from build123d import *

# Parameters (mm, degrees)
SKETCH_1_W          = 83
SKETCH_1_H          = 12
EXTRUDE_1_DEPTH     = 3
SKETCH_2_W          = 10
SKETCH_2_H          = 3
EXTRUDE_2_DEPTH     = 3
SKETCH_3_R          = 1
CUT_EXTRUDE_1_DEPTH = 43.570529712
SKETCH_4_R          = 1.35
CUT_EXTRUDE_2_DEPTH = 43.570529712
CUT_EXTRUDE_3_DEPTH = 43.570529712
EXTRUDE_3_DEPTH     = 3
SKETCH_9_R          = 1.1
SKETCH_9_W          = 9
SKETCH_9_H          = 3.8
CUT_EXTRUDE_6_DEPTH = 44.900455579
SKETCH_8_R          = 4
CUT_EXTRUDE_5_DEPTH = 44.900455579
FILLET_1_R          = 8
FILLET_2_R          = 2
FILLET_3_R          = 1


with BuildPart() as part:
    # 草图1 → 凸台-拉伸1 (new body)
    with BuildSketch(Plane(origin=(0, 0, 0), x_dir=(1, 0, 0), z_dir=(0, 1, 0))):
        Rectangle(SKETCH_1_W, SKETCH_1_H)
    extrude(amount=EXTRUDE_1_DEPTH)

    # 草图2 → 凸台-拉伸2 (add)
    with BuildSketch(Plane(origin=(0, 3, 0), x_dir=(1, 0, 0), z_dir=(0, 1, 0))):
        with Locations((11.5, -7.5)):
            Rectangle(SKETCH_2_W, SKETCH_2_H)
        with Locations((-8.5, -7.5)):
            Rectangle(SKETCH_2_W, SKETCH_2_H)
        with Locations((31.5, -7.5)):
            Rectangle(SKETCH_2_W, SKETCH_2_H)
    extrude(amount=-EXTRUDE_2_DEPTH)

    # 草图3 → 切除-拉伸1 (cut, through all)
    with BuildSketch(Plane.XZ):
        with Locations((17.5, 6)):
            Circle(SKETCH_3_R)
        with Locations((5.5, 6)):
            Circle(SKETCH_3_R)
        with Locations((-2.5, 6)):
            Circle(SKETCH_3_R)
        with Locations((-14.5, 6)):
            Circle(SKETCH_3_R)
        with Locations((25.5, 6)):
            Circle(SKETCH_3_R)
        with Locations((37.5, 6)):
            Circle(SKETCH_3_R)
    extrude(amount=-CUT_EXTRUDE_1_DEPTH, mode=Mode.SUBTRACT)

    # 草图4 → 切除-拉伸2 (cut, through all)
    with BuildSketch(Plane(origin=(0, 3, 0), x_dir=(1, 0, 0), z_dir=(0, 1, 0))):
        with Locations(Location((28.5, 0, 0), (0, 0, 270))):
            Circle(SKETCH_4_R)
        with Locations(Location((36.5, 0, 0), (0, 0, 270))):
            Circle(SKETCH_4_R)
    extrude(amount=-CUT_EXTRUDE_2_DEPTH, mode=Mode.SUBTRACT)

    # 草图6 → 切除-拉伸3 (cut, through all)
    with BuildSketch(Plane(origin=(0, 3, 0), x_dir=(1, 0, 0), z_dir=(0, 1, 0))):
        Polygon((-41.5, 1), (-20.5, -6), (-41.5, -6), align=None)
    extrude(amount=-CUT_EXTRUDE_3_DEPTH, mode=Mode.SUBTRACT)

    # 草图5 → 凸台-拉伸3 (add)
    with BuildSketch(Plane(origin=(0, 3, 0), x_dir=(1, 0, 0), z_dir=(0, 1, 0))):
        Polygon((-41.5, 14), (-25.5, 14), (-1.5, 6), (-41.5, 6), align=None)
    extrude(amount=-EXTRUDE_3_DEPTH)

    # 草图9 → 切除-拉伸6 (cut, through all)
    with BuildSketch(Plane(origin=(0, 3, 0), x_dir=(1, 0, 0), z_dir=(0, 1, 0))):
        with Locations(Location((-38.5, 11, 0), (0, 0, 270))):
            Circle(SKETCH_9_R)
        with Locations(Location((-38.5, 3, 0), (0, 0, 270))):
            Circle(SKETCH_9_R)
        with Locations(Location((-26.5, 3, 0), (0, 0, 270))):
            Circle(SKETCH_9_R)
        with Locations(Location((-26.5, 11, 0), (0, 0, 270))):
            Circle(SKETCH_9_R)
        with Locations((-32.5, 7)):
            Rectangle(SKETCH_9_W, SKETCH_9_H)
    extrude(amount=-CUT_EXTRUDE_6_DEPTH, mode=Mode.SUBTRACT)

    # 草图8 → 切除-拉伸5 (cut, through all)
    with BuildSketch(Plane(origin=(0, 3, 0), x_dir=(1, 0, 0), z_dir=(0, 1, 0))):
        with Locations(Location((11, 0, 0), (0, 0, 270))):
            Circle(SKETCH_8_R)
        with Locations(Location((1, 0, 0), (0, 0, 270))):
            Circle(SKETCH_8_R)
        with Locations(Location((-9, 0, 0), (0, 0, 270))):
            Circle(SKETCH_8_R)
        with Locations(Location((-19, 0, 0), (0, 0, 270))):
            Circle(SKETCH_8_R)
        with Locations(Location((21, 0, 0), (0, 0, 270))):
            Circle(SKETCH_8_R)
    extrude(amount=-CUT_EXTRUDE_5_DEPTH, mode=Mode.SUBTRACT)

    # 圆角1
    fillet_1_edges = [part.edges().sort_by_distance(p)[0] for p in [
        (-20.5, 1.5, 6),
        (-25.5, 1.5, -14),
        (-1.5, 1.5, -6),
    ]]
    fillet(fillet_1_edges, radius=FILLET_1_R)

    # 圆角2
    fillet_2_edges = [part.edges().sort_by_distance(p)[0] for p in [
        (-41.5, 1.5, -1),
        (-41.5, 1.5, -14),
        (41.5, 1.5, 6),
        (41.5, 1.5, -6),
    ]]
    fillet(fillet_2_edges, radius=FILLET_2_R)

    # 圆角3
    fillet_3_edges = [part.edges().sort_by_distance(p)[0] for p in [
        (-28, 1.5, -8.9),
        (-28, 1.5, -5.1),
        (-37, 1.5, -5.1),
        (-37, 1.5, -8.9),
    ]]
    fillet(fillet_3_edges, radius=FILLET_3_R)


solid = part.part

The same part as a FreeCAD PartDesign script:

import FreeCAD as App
import Part
import Sketcher
from FreeCAD import Vector


def edges_at(feature, points):
    """Names of the edges that pass closest to the given points."""
    edges = feature.Shape.Edges
    near = lambda p: min(range(len(edges)), key=lambda i: edges[i].distToShape(Part.Vertex(*p))[0])
    return sorted({f"Edge{near(p) + 1}" for p in points})

doc = App.newDocument("Part")
params = doc.addObject("Spreadsheet::Sheet", "Params")
for row, (alias, value) in enumerate([
    ("sketch1_width", "83 mm"),
    ("sketch1_height", "12 mm"),
    ("pad1_length", "3 mm"),
    ("sketch2_width", "10 mm"),
    ("sketch2_height", "3 mm"),
    ("pad2_length", "3 mm"),
    ("sketch3_diameter", "2 mm"),
    ("sketch4_diameter", "2.7 mm"),
    ("sketch5_width", "21 mm"),
    ("sketch5_height", "7 mm"),
    ("sketch6_width", "16 mm"),
    ("sketch6_width2", "40 mm"),
    ("sketch6_height", "8 mm"),
    ("pad3_length", "3 mm"),
    ("sketch7_diameter", "2.2 mm"),
    ("sketch7_width", "9 mm"),
    ("sketch7_height", "3.8 mm"),
    ("sketch8_diameter", "8 mm"),
    ("fillet_radius", "8 mm"),
    ("fillet2_radius", "2 mm"),
    ("fillet3_radius", "1 mm"),
], start=1):
    params.set(f"A{row}", alias)
    params.set(f"B{row}", "=" + value)
    params.setAlias(f"B{row}", alias)

body = doc.addObject("PartDesign::Body", "Body")

# Sketch on XZ plane
sketch1 = body.newObject("Sketcher::SketchObject", "Sketch")
sketch1.AttachmentSupport = (doc.getObject("XZ_Plane"), [""])
sketch1.MapMode = "FlatFace"
sketch1.addGeometry(Part.LineSegment(Vector(-41.5, -6, 0), Vector(-41.5, 6, 0)), False)
sketch1.addGeometry(Part.LineSegment(Vector(-41.5, 6, 0), Vector(41.5, 6, 0)), False)
sketch1.addGeometry(Part.LineSegment(Vector(41.5, 6, 0), Vector(41.5, -6, 0)), False)
sketch1.addGeometry(Part.LineSegment(Vector(41.5, -6, 0), Vector(-41.5, -6, 0)), False)
sketch1.addConstraint(Sketcher.Constraint("Coincident", 0, 2, 1, 1))
sketch1.addConstraint(Sketcher.Constraint("Coincident", 1, 2, 2, 1))
sketch1.addConstraint(Sketcher.Constraint("Coincident", 2, 2, 3, 1))
sketch1.addConstraint(Sketcher.Constraint("Coincident", 3, 2, 0, 1))
sketch1.addConstraint(Sketcher.Constraint("Vertical", 0))
sketch1.addConstraint(Sketcher.Constraint("Horizontal", 1))
sketch1.addConstraint(Sketcher.Constraint("Vertical", 2))
sketch1.addConstraint(Sketcher.Constraint("Horizontal", 3))
sketch1.addConstraint(Sketcher.Constraint("Symmetric", 0, 2, 2, 2, -1, 1))
sketch1.addConstraint(Sketcher.Constraint("DistanceX", 1, 1, 1, 2, 83.0))
sketch1.addConstraint(Sketcher.Constraint("DistanceY", 0, 1, 0, 2, 12.0))
sketch1.setExpression("Constraints[9]", "Params.sketch1_width")
sketch1.setExpression("Constraints[10]", "Params.sketch1_height")
pad1 = body.newObject("PartDesign::Pad", "Pad")
pad1.Profile = sketch1
pad1.setExpression("Length", "Params.pad1_length")
pad1.Reversed = True

# Sketch on XZ plane
sketch2 = body.newObject("Sketcher::SketchObject", "Sketch001")
sketch2.AttachmentSupport = (doc.getObject("XZ_Plane"), [""])
sketch2.MapMode = "FlatFace"
sketch2.AttachmentOffset = App.Placement(Vector(0, 0, -3), App.Rotation())
sketch2.addGeometry(Part.LineSegment(Vector(6.5, 6, 0), Vector(6.5, 9, 0)), False)
sketch2.addGeometry(Part.LineSegment(Vector(6.5, 9, 0), Vector(16.5, 9, 0)), False)
sketch2.addGeometry(Part.LineSegment(Vector(16.5, 9, 0), Vector(16.5, 6, 0)), False)
sketch2.addGeometry(Part.LineSegment(Vector(16.5, 6, 0), Vector(6.5, 6, 0)), False)
sketch2.addGeometry(Part.LineSegment(Vector(-13.5, 6, 0), Vector(-13.5, 9, 0)), False)
sketch2.addGeometry(Part.LineSegment(Vector(-13.5, 9, 0), Vector(-3.5, 9, 0)), False)
sketch2.addGeometry(Part.LineSegment(Vector(-3.5, 9, 0), Vector(-3.5, 6, 0)), False)
sketch2.addGeometry(Part.LineSegment(Vector(-3.5, 6, 0), Vector(-13.5, 6, 0)), False)
sketch2.addGeometry(Part.LineSegment(Vector(26.5, 6, 0), Vector(26.5, 9, 0)), False)
sketch2.addGeometry(Part.LineSegment(Vector(26.5, 9, 0), Vector(36.5, 9, 0)), False)
sketch2.addGeometry(Part.LineSegment(Vector(36.5, 9, 0), Vector(36.5, 6, 0)), False)
sketch2.addGeometry(Part.LineSegment(Vector(36.5, 6, 0), Vector(26.5, 6, 0)), False)
sketch2.addConstraint(Sketcher.Constraint("Coincident", 0, 2, 1, 1))
sketch2.addConstraint(Sketcher.Constraint("Coincident", 1, 2, 2, 1))
sketch2.addConstraint(Sketcher.Constraint("Coincident", 2, 2, 3, 1))
sketch2.addConstraint(Sketcher.Constraint("Coincident", 3, 2, 0, 1))
sketch2.addConstraint(Sketcher.Constraint("Coincident", 4, 2, 5, 1))
sketch2.addConstraint(Sketcher.Constraint("Coincident", 5, 2, 6, 1))
sketch2.addConstraint(Sketcher.Constraint("Coincident", 6, 2, 7, 1))
sketch2.addConstraint(Sketcher.Constraint("Coincident", 7, 2, 4, 1))
sketch2.addConstraint(Sketcher.Constraint("Coincident", 8, 2, 9, 1))
sketch2.addConstraint(Sketcher.Constraint("Coincident", 9, 2, 10, 1))
sketch2.addConstraint(Sketcher.Constraint("Coincident", 10, 2, 11, 1))
sketch2.addConstraint(Sketcher.Constraint("Coincident", 11, 2, 8, 1))
sketch2.addConstraint(Sketcher.Constraint("Vertical", 0))
sketch2.addConstraint(Sketcher.Constraint("Horizontal", 1))
sketch2.addConstraint(Sketcher.Constraint("Vertical", 2))
sketch2.addConstraint(Sketcher.Constraint("Horizontal", 3))
sketch2.addConstraint(Sketcher.Constraint("Vertical", 4))
sketch2.addConstraint(Sketcher.Constraint("Horizontal", 5))
sketch2.addConstraint(Sketcher.Constraint("Vertical", 6))
sketch2.addConstraint(Sketcher.Constraint("Horizontal", 7))
sketch2.addConstraint(Sketcher.Constraint("Vertical", 8))
sketch2.addConstraint(Sketcher.Constraint("Horizontal", 9))
sketch2.addConstraint(Sketcher.Constraint("Vertical", 10))
sketch2.addConstraint(Sketcher.Constraint("Horizontal", 11))
sketch2.addConstraint(Sketcher.Constraint("Horizontal", 1, 2, 4, 2))
sketch2.addConstraint(Sketcher.Constraint("Horizontal", 3, 2, 6, 2))
sketch2.addConstraint(Sketcher.Constraint("Horizontal", 5, 2, 8, 2))
sketch2.addConstraint(Sketcher.Constraint("Horizontal", 7, 2, 10, 2))
sketch2.addConstraint(Sketcher.Constraint("Equal", 3, 5))
sketch2.addConstraint(Sketcher.Constraint("Equal", 7, 9))
sketch2.addConstraint(Sketcher.Constraint("DistanceX", 1, 1, 1, 2, 10.0))
sketch2.addConstraint(Sketcher.Constraint("DistanceY", 0, 1, 0, 2, 3.0))
sketch2.addConstraint(Sketcher.Constraint("DistanceY", -1, 1, 0, 2, 9.0))
sketch2.addConstraint(Sketcher.Constraint("DistanceX", 4, 2, 0, 2, 20.0))
sketch2.addConstraint(Sketcher.Constraint("DistanceX", 1, 2, 8, 2, 10.0))
sketch2.addConstraint(Sketcher.Constraint("DistanceX", -1, 1, 0, 2, 6.5))
sketch2.setExpression("Constraints[30]", "Params.sketch2_width")
sketch2.setExpression("Constraints[31]", "Params.sketch2_height")
pad2 = body.newObject("PartDesign::Pad", "Pad001")
pad2.Profile = sketch2
pad2.setExpression("Length", "Params.pad2_length")

# Sketch on XZ plane
sketch3 = body.newObject("Sketcher::SketchObject", "Sketch002")
sketch3.AttachmentSupport = (doc.getObject("XZ_Plane"), [""])
sketch3.MapMode = "FlatFace"
sketch3.addGeometry(Part.Circle(Vector(17.5, 6, 0), Vector(0, 0, 1), 1), False)
sketch3.addGeometry(Part.Circle(Vector(5.5, 6, 0), Vector(0, 0, 1), 1), False)
sketch3.addGeometry(Part.Circle(Vector(-2.5, 6, 0), Vector(0, 0, 1), 1), False)
sketch3.addGeometry(Part.Circle(Vector(-14.5, 6, 0), Vector(0, 0, 1), 1), False)
sketch3.addGeometry(Part.Circle(Vector(25.5, 6, 0), Vector(0, 0, 1), 1), False)
sketch3.addGeometry(Part.Circle(Vector(37.5, 6, 0), Vector(0, 0, 1), 1), False)
sketch3.addConstraint(Sketcher.Constraint("Equal", 0, 1))
sketch3.addConstraint(Sketcher.Constraint("Equal", 1, 2))
sketch3.addConstraint(Sketcher.Constraint("Equal", 2, 3))
sketch3.addConstraint(Sketcher.Constraint("Equal", 3, 4))
sketch3.addConstraint(Sketcher.Constraint("Equal", 4, 5))
sketch3.addConstraint(Sketcher.Constraint("Horizontal", 0, 3, 1, 3))
sketch3.addConstraint(Sketcher.Constraint("Horizontal", 1, 3, 2, 3))
sketch3.addConstraint(Sketcher.Constraint("Horizontal", 2, 3, 3, 3))
sketch3.addConstraint(Sketcher.Constraint("Horizontal", 3, 3, 4, 3))
sketch3.addConstraint(Sketcher.Constraint("Horizontal", 4, 3, 5, 3))
sketch3.addConstraint(Sketcher.Constraint("Diameter", 0, 2.0))
sketch3.addConstraint(Sketcher.Constraint("DistanceY", -1, 1, 0, 3, 6.0))
sketch3.addConstraint(Sketcher.Constraint("DistanceX", 1, 3, 0, 3, 12.0))
sketch3.addConstraint(Sketcher.Constraint("DistanceX", 2, 3, 1, 3, 8.0))
sketch3.addConstraint(Sketcher.Constraint("DistanceX", 3, 3, 2, 3, 12.0))
sketch3.addConstraint(Sketcher.Constraint("DistanceX", 0, 3, 4, 3, 8.0))
sketch3.addConstraint(Sketcher.Constraint("DistanceX", 4, 3, 5, 3, 12.0))
sketch3.addConstraint(Sketcher.Constraint("DistanceX", -1, 1, 0, 3, 17.5))
sketch3.setExpression("Constraints[10]", "Params.sketch3_diameter")
pocket1 = body.newObject("PartDesign::Pocket", "Pocket")
pocket1.Profile = sketch3
pocket1.Type = "ThroughAll"

# Sketch on XZ plane
sketch4 = body.newObject("Sketcher::SketchObject", "Sketch003")
sketch4.AttachmentSupport = (doc.getObject("XZ_Plane"), [""])
sketch4.MapMode = "FlatFace"
sketch4.AttachmentOffset = App.Placement(Vector(0, 0, -3), App.Rotation())
sketch4.addGeometry(Part.Circle(Vector(28.5, 0, 0), Vector(0, 0, 1), 1.35), False)
sketch4.addGeometry(Part.Circle(Vector(36.5, 0, 0), Vector(0, 0, 1), 1.35), False)
sketch4.addConstraint(Sketcher.Constraint("Equal", 0, 1))
sketch4.addConstraint(Sketcher.Constraint("PointOnObject", 0, 3, -1))
sketch4.addConstraint(Sketcher.Constraint("PointOnObject", 1, 3, -1))
sketch4.addConstraint(Sketcher.Constraint("Diameter", 0, 2.7))
sketch4.addConstraint(Sketcher.Constraint("DistanceX", 0, 3, 1, 3, 8.0))
sketch4.addConstraint(Sketcher.Constraint("DistanceX", -1, 1, 0, 3, 28.5))
sketch4.setExpression("Constraints[3]", "Params.sketch4_diameter")
pocket2 = body.newObject("PartDesign::Pocket", "Pocket001")
pocket2.Profile = sketch4
pocket2.Type = "ThroughAll"
pocket2.Reversed = True

# Sketch on XZ plane
sketch5 = body.newObject("Sketcher::SketchObject", "Sketch004")
sketch5.AttachmentSupport = (doc.getObject("XZ_Plane"), [""])
sketch5.MapMode = "FlatFace"
sketch5.AttachmentOffset = App.Placement(Vector(0, 0, -3), App.Rotation())
sketch5.addGeometry(Part.LineSegment(Vector(-20.5, 6, 0), Vector(-41.5, -1, 0)), False)
sketch5.addGeometry(Part.LineSegment(Vector(-41.5, -1, 0), Vector(-41.5, 6, 0)), False)
sketch5.addGeometry(Part.LineSegment(Vector(-41.5, 6, 0), Vector(-20.5, 6, 0)), False)
sketch5.addConstraint(Sketcher.Constraint("Coincident", 0, 2, 1, 1))
sketch5.addConstraint(Sketcher.Constraint("Coincident", 1, 2, 2, 1))
sketch5.addConstraint(Sketcher.Constraint("Coincident", 2, 2, 0, 1))
sketch5.addConstraint(Sketcher.Constraint("Vertical", 1))
sketch5.addConstraint(Sketcher.Constraint("Horizontal", 2))
sketch5.addConstraint(Sketcher.Constraint("DistanceX", 2, 1, 2, 2, 21.0))
sketch5.addConstraint(Sketcher.Constraint("DistanceY", 1, 1, 1, 2, 7.0))
sketch5.addConstraint(Sketcher.Constraint("DistanceY", 0, 2, -1, 1, 1.0))
sketch5.addConstraint(Sketcher.Constraint("DistanceX", 0, 2, -1, 1, 41.5))
sketch5.setExpression("Constraints[5]", "Params.sketch5_width")
sketch5.setExpression("Constraints[6]", "Params.sketch5_height")
pocket3 = body.newObject("PartDesign::Pocket", "Pocket002")
pocket3.Profile = sketch5
pocket3.Type = "ThroughAll"
pocket3.Reversed = True

# Sketch on XZ plane
sketch6 = body.newObject("Sketcher::SketchObject", "Sketch005")
sketch6.AttachmentSupport = (doc.getObject("XZ_Plane"), [""])
sketch6.MapMode = "FlatFace"
sketch6.AttachmentOffset = App.Placement(Vector(0, 0, -3), App.Rotation())
sketch6.addGeometry(Part.LineSegment(Vector(-25.5, -14, 0), Vector(-41.5, -14, 0)), False)
sketch6.addGeometry(Part.LineSegment(Vector(-41.5, -14, 0), Vector(-41.5, -6, 0)), False)
sketch6.addGeometry(Part.LineSegment(Vector(-41.5, -6, 0), Vector(-1.5, -6, 0)), False)
sketch6.addGeometry(Part.LineSegment(Vector(-1.5, -6, 0), Vector(-25.5, -14, 0)), False)
sketch6.addConstraint(Sketcher.Constraint("Coincident", 0, 2, 1, 1))
sketch6.addConstraint(Sketcher.Constraint("Coincident", 1, 2, 2, 1))
sketch6.addConstraint(Sketcher.Constraint("Coincident", 2, 2, 3, 1))
sketch6.addConstraint(Sketcher.Constraint("Coincident", 3, 2, 0, 1))
sketch6.addConstraint(Sketcher.Constraint("Horizontal", 0))
sketch6.addConstraint(Sketcher.Constraint("Vertical", 1))
sketch6.addConstraint(Sketcher.Constraint("Horizontal", 2))
sketch6.addConstraint(Sketcher.Constraint("DistanceX", 0, 2, 0, 1, 16.0))
sketch6.addConstraint(Sketcher.Constraint("DistanceX", 2, 1, 2, 2, 40.0))
sketch6.addConstraint(Sketcher.Constraint("DistanceY", 1, 1, 1, 2, 8.0))
sketch6.addConstraint(Sketcher.Constraint("DistanceY", 0, 2, -1, 1, 14.0))
sketch6.addConstraint(Sketcher.Constraint("DistanceX", 0, 2, -1, 1, 41.5))
sketch6.setExpression("Constraints[7]", "Params.sketch6_width")
sketch6.setExpression("Constraints[8]", "Params.sketch6_width2")
sketch6.setExpression("Constraints[9]", "Params.sketch6_height")
pad3 = body.newObject("PartDesign::Pad", "Pad002")
pad3.Profile = sketch6
pad3.setExpression("Length", "Params.pad3_length")

# Sketch on XZ plane
sketch7 = body.newObject("Sketcher::SketchObject", "Sketch006")
sketch7.AttachmentSupport = (doc.getObject("XZ_Plane"), [""])
sketch7.MapMode = "FlatFace"
sketch7.AttachmentOffset = App.Placement(Vector(0, 0, -3), App.Rotation())
sketch7.addGeometry(Part.Circle(Vector(-38.5, -11, 0), Vector(0, 0, 1), 1.1), False)
sketch7.addGeometry(Part.Circle(Vector(-38.5, -3, 0), Vector(0, 0, 1), 1.1), False)
sketch7.addGeometry(Part.Circle(Vector(-26.5, -3, 0), Vector(0, 0, 1), 1.1), False)
sketch7.addGeometry(Part.Circle(Vector(-26.5, -11, 0), Vector(0, 0, 1), 1.1), False)
sketch7.addGeometry(Part.LineSegment(Vector(-37, -8.9, 0), Vector(-37, -5.1, 0)), False)
sketch7.addGeometry(Part.LineSegment(Vector(-37, -5.1, 0), Vector(-28, -5.1, 0)), False)
sketch7.addGeometry(Part.LineSegment(Vector(-28, -5.1, 0), Vector(-28, -8.9, 0)), False)
sketch7.addGeometry(Part.LineSegment(Vector(-28, -8.9, 0), Vector(-37, -8.9, 0)), False)
sketch7.addConstraint(Sketcher.Constraint("Coincident", 4, 2, 5, 1))
sketch7.addConstraint(Sketcher.Constraint("Coincident", 5, 2, 6, 1))
sketch7.addConstraint(Sketcher.Constraint("Coincident", 6, 2, 7, 1))
sketch7.addConstraint(Sketcher.Constraint("Coincident", 7, 2, 4, 1))
sketch7.addConstraint(Sketcher.Constraint("Vertical", 4))
sketch7.addConstraint(Sketcher.Constraint("Horizontal", 5))
sketch7.addConstraint(Sketcher.Constraint("Vertical", 6))
sketch7.addConstraint(Sketcher.Constraint("Horizontal", 7))
sketch7.addConstraint(Sketcher.Constraint("Equal", 0, 1))
sketch7.addConstraint(Sketcher.Constraint("Equal", 1, 2))
sketch7.addConstraint(Sketcher.Constraint("Equal", 2, 3))
sketch7.addConstraint(Sketcher.Constraint("Horizontal", 1, 3, 2, 3))
sketch7.addConstraint(Sketcher.Constraint("Horizontal", 0, 3, 3, 3))
sketch7.addConstraint(Sketcher.Constraint("Vertical", 0, 3, 1, 3))
sketch7.addConstraint(Sketcher.Constraint("Vertical", 2, 3, 3, 3))
sketch7.addConstraint(Sketcher.Constraint("Diameter", 0, 2.2))
sketch7.addConstraint(Sketcher.Constraint("DistanceX", 5, 1, 5, 2, 9.0))
sketch7.addConstraint(Sketcher.Constraint("DistanceY", 4, 1, 4, 2, 3.8))
sketch7.addConstraint(Sketcher.Constraint("DistanceY", 0, 3, -1, 1, 11.0))
sketch7.addConstraint(Sketcher.Constraint("DistanceY", 1, 3, -1, 1, 3.0))
sketch7.addConstraint(Sketcher.Constraint("DistanceX", 4, 2, -1, 1, 37.0))
sketch7.addConstraint(Sketcher.Constraint("DistanceX", 1, 3, 2, 3, 12.0))
sketch7.addConstraint(Sketcher.Constraint("DistanceX", 0, 3, -1, 1, 38.5))
sketch7.addConstraint(Sketcher.Constraint("DistanceY", 4, 2, -1, 1, 5.1))
sketch7.setExpression("Constraints[15]", "Params.sketch7_diameter")
sketch7.setExpression("Constraints[16]", "Params.sketch7_width")
sketch7.setExpression("Constraints[17]", "Params.sketch7_height")
pocket4 = body.newObject("PartDesign::Pocket", "Pocket003")
pocket4.Profile = sketch7
pocket4.Type = "ThroughAll"
pocket4.Reversed = True

# Sketch on XZ plane
sketch8 = body.newObject("Sketcher::SketchObject", "Sketch007")
sketch8.AttachmentSupport = (doc.getObject("XZ_Plane"), [""])
sketch8.MapMode = "FlatFace"
sketch8.AttachmentOffset = App.Placement(Vector(0, 0, -3), App.Rotation())
sketch8.addGeometry(Part.Circle(Vector(11, 0, 0), Vector(0, 0, 1), 4), False)
sketch8.addGeometry(Part.Circle(Vector(1, 0, 0), Vector(0, 0, 1), 4), False)
sketch8.addGeometry(Part.Circle(Vector(-9, 0, 0), Vector(0, 0, 1), 4), False)
sketch8.addGeometry(Part.Circle(Vector(-19, 0, 0), Vector(0, 0, 1), 4), False)
sketch8.addGeometry(Part.Circle(Vector(21, 0, 0), Vector(0, 0, 1), 4), False)
sketch8.addConstraint(Sketcher.Constraint("Equal", 0, 1))
sketch8.addConstraint(Sketcher.Constraint("Equal", 1, 2))
sketch8.addConstraint(Sketcher.Constraint("Equal", 2, 3))
sketch8.addConstraint(Sketcher.Constraint("Equal", 3, 4))
sketch8.addConstraint(Sketcher.Constraint("PointOnObject", 0, 3, -1))
sketch8.addConstraint(Sketcher.Constraint("PointOnObject", 1, 3, -1))
sketch8.addConstraint(Sketcher.Constraint("PointOnObject", 2, 3, -1))
sketch8.addConstraint(Sketcher.Constraint("PointOnObject", 3, 3, -1))
sketch8.addConstraint(Sketcher.Constraint("PointOnObject", 4, 3, -1))
sketch8.addConstraint(Sketcher.Constraint("Diameter", 0, 8.0))
sketch8.addConstraint(Sketcher.Constraint("DistanceX", -1, 1, 0, 3, 11.0))
sketch8.addConstraint(Sketcher.Constraint("DistanceX", -1, 1, 1, 3, 1.0))
sketch8.addConstraint(Sketcher.Constraint("DistanceX", 2, 3, -1, 1, 9.0))
sketch8.addConstraint(Sketcher.Constraint("DistanceX", 3, 3, -1, 1, 19.0))
sketch8.addConstraint(Sketcher.Constraint("DistanceX", -1, 1, 4, 3, 21.0))
sketch8.setExpression("Constraints[9]", "Params.sketch8_diameter")
pocket5 = body.newObject("PartDesign::Pocket", "Pocket004")
pocket5.Profile = sketch8
pocket5.Type = "ThroughAll"
pocket5.Reversed = True
doc.recompute()

fillet = body.newObject("PartDesign::Fillet", "Fillet")
fillet.Base = (pocket5, edges_at(pocket5, [(-20.5, 1.5, 6), (-25.5, 1.5, -14), (-1.5, 1.5, -6)]))
fillet.setExpression("Radius", "Params.fillet_radius")
doc.recompute()

fillet2 = body.newObject("PartDesign::Fillet", "Fillet001")
fillet2.Base = (fillet, edges_at(fillet, [
    (-41.5, 1.5, -1),
    (-41.5, 1.5, -14),
    (41.5, 1.5, 6),
    (41.5, 1.5, -6),
]))
fillet2.setExpression("Radius", "Params.fillet2_radius")
doc.recompute()

fillet3 = body.newObject("PartDesign::Fillet", "Fillet002")
fillet3.Base = (fillet2, edges_at(fillet2, [
    (-28, 1.5, -8.9),
    (-28, 1.5, -5.1),
    (-37, 1.5, -5.1),
    (-37, 1.5, -8.9),
]))
fillet3.setExpression("Radius", "Params.fillet3_radius")

doc.recompute()
